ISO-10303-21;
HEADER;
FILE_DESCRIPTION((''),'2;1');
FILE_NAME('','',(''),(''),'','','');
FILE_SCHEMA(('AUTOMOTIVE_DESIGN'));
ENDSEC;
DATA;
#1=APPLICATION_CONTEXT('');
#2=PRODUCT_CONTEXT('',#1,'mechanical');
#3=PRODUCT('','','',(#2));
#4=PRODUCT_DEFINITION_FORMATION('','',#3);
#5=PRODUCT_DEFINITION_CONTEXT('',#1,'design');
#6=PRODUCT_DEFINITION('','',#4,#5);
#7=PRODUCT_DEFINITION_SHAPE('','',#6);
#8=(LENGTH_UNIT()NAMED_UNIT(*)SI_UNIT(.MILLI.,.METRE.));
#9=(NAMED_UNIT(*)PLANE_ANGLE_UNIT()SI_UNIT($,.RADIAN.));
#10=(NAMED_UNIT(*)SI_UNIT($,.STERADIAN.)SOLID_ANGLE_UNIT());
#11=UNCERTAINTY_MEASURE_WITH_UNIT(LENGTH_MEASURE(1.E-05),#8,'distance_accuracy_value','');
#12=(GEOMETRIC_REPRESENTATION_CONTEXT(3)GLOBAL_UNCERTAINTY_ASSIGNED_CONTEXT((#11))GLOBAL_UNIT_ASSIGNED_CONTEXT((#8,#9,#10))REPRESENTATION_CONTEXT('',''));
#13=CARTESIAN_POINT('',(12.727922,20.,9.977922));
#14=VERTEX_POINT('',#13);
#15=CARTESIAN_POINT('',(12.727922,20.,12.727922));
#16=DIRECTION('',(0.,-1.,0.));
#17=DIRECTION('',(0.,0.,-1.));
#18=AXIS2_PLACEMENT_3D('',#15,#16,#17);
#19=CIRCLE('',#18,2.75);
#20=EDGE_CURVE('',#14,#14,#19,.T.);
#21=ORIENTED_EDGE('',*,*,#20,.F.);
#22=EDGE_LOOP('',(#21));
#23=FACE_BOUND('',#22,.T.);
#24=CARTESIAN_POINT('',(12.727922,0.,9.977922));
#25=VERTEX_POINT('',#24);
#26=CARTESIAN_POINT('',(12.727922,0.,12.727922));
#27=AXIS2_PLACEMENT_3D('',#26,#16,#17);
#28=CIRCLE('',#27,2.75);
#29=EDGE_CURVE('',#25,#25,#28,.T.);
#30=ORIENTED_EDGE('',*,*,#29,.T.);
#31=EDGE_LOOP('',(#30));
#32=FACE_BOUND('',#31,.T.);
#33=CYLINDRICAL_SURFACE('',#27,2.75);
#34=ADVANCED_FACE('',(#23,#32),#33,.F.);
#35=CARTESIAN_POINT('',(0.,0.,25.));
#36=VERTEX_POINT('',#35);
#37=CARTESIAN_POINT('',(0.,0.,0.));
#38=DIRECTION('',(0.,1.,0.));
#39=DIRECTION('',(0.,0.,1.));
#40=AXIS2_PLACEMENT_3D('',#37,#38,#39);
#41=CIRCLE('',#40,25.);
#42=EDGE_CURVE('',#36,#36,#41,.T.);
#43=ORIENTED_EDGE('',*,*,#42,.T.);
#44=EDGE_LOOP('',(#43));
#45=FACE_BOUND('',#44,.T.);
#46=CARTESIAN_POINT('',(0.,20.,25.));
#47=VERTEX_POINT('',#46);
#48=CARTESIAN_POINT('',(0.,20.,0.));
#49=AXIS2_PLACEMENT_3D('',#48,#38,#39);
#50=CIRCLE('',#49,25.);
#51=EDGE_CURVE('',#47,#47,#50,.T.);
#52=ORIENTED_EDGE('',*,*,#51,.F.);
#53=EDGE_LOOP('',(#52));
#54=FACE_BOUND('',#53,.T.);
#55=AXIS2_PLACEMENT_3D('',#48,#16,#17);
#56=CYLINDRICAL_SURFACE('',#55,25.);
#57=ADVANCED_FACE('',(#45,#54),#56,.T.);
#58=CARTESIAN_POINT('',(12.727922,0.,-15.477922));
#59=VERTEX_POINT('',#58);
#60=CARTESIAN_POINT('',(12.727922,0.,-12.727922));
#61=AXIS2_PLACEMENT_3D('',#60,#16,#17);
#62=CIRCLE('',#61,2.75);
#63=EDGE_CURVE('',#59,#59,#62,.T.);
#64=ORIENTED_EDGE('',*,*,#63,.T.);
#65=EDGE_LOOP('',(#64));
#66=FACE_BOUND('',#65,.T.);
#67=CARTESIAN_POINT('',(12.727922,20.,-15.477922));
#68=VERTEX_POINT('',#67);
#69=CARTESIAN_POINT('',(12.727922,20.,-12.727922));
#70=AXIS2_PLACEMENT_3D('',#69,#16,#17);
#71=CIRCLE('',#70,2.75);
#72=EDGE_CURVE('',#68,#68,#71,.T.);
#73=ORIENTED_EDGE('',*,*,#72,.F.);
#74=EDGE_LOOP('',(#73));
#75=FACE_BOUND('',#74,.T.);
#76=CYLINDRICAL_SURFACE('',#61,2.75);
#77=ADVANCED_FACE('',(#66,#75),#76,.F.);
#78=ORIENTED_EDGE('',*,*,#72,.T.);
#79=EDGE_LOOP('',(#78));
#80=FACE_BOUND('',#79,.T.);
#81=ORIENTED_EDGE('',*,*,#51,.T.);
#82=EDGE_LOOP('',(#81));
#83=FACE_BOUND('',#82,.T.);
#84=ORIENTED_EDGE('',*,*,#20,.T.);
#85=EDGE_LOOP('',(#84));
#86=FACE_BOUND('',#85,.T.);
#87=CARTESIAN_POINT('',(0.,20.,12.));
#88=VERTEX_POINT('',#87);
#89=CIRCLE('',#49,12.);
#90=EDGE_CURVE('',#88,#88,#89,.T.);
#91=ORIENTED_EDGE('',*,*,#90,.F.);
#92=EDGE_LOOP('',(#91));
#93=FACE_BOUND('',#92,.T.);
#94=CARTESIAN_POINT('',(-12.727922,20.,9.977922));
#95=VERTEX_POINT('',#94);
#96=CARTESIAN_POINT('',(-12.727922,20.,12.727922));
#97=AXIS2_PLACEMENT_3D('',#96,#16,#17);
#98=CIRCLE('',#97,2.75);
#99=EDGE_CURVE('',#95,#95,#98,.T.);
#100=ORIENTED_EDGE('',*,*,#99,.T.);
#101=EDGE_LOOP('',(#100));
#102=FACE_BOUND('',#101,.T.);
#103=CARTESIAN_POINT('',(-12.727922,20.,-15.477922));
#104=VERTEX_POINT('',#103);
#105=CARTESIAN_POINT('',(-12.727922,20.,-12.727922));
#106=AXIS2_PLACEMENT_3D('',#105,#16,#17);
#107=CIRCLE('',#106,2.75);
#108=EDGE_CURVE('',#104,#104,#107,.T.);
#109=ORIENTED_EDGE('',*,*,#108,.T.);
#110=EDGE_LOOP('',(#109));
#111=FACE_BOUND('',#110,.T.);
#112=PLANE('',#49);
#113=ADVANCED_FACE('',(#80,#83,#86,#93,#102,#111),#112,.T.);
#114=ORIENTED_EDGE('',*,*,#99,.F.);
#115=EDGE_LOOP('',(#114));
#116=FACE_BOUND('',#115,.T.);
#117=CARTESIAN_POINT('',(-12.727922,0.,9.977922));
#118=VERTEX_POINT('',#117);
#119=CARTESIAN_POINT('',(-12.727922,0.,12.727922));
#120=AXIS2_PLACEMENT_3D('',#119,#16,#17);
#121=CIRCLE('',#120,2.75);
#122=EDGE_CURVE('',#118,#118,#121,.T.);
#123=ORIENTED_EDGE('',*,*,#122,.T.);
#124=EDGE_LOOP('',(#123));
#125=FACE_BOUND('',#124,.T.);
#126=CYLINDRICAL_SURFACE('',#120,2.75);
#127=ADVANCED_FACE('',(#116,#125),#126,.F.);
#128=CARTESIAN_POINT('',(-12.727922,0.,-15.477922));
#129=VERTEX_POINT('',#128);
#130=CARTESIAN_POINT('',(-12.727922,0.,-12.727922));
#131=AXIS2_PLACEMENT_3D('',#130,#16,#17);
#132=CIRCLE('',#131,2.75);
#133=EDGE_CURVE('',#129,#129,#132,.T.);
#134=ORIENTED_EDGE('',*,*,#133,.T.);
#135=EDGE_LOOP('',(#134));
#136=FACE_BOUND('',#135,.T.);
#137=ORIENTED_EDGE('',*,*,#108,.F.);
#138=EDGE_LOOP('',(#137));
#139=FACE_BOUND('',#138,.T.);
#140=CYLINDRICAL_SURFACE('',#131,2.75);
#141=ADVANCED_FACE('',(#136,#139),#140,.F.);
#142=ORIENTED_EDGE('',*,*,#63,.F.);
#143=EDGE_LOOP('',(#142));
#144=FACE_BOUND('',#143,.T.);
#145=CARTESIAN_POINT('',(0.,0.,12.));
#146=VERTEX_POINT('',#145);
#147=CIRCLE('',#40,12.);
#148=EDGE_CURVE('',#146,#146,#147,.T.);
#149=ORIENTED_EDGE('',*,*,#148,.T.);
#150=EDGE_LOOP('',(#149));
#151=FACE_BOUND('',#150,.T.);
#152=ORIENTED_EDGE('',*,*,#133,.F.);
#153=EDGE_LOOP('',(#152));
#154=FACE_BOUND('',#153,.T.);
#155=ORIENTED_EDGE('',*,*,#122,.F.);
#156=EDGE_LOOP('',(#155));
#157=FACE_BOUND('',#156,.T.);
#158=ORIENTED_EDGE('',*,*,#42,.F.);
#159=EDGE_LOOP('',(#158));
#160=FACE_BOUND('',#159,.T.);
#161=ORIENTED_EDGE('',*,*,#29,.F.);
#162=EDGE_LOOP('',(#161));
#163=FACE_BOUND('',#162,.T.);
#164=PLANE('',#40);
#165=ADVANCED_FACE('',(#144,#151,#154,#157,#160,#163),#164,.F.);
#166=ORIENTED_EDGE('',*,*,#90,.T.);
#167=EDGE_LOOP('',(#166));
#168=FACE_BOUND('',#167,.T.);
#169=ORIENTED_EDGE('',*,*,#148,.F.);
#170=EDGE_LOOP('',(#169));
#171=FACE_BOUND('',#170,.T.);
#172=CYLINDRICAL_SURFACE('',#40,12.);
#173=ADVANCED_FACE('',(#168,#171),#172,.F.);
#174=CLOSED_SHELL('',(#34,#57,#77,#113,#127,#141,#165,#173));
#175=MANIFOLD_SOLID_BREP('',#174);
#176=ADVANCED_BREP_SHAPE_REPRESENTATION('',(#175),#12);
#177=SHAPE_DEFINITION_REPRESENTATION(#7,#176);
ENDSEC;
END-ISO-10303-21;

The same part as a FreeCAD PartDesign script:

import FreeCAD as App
import Part
import Sketcher
Q = App.Units.Quantity

doc = App.newDocument("Part")
body = doc.addObject("PartDesign::Body", "Body")

# Sketch on XZ plane
sketch1 = body.newObject("Sketcher::SketchObject", "Sketch")
sketch1.AttachmentSupport = (doc.getObject("XZ_Plane"), [""])
sketch1.MapMode = "FlatFace"
sketch1.addGeometry(Part.Circle(App.Vector(0, 0, 0), App.Vector(0, 0, 1), 25), False)
sketch1.addConstraint([
    Sketcher.Constraint("Coincident", 0, 3, -1, 1),
    Sketcher.Constraint("Diameter", 0, Q("50 mm")),
])
pad1 = body.newObject("PartDesign::Pad", "Pad")
pad1.Profile = sketch1
pad1.Length = 20
pad1.Reversed = True

# Sketch on XZ plane
sketch2 = body.newObject("Sketcher::SketchObject", "Sketch001")
sketch2.AttachmentSupport = (doc.getObject("XZ_Plane"), [""])
sketch2.MapMode = "FlatFace"
sketch2.AttachmentOffset = App.Placement(App.Vector(0, 0, -20), App.Rotation())
sketch2.addGeometry(Part.Circle(App.Vector(0, 0, 0), App.Vector(0, 0, 1), 12), False)
sketch2.addConstraint([
    Sketcher.Constraint("Coincident", 0, 3, -1, 1),
    Sketcher.Constraint("Diameter", 0, Q("24 mm")),
])
pocket1 = body.newObject("PartDesign::Pocket", "Pocket")
pocket1.Profile = sketch2
pocket1.Type = "ThroughAll"
pocket1.Reversed = True

# Sketch on XZ plane
sketch3 = body.newObject("Sketcher::SketchObject", "Sketch002")
sketch3.AttachmentSupport = (doc.getObject("XZ_Plane"), [""])
sketch3.MapMode = "FlatFace"
sketch3.addGeometry([
    Part.Circle(App.Vector(-12.7, 12.7, 0), App.Vector(0, 0, 1), 2.8),
    Part.Circle(App.Vector(12.7, -12.7, 0), App.Vector(0, 0, 1), 2.8),
    Part.Circle(App.Vector(-12.7, -12.7, 0), App.Vector(0, 0, 1), 2.8),
    Part.Circle(App.Vector(12.7, 12.7, 0), App.Vector(0, 0, 1), 2.8),
], False)
sketch3.addConstraint([
    Sketcher.Constraint("Equal", 0, 1),
    Sketcher.Constraint("Equal", 1, 2),
    Sketcher.Constraint("Equal", 2, 3),
    Sketcher.Constraint("Symmetric", 0, 3, 1, 3, -1, 1),
    Sketcher.Constraint("Symmetric", 2, 3, 3, 3, -1, 1),
    Sketcher.Constraint("Symmetric", 1, 3, 2, 3, -2),
    Sketcher.Constraint("Diameter", 0, Q("5.5 mm")),
    Sketcher.Constraint("DistanceX", 0, 3, -1, 1, Q("12.727922 mm")),
    Sketcher.Constraint("DistanceY", -1, 1, 0, 3, Q("12.727922 mm")),
])
doc.recompute()
hole = body.newObject("PartDesign::Hole", "Hole")
hole.Profile = sketch3
hole.ThreadType = "None"
hole.Diameter = 5.5
hole.DepthType = "ThroughAll"

doc.recompute()
